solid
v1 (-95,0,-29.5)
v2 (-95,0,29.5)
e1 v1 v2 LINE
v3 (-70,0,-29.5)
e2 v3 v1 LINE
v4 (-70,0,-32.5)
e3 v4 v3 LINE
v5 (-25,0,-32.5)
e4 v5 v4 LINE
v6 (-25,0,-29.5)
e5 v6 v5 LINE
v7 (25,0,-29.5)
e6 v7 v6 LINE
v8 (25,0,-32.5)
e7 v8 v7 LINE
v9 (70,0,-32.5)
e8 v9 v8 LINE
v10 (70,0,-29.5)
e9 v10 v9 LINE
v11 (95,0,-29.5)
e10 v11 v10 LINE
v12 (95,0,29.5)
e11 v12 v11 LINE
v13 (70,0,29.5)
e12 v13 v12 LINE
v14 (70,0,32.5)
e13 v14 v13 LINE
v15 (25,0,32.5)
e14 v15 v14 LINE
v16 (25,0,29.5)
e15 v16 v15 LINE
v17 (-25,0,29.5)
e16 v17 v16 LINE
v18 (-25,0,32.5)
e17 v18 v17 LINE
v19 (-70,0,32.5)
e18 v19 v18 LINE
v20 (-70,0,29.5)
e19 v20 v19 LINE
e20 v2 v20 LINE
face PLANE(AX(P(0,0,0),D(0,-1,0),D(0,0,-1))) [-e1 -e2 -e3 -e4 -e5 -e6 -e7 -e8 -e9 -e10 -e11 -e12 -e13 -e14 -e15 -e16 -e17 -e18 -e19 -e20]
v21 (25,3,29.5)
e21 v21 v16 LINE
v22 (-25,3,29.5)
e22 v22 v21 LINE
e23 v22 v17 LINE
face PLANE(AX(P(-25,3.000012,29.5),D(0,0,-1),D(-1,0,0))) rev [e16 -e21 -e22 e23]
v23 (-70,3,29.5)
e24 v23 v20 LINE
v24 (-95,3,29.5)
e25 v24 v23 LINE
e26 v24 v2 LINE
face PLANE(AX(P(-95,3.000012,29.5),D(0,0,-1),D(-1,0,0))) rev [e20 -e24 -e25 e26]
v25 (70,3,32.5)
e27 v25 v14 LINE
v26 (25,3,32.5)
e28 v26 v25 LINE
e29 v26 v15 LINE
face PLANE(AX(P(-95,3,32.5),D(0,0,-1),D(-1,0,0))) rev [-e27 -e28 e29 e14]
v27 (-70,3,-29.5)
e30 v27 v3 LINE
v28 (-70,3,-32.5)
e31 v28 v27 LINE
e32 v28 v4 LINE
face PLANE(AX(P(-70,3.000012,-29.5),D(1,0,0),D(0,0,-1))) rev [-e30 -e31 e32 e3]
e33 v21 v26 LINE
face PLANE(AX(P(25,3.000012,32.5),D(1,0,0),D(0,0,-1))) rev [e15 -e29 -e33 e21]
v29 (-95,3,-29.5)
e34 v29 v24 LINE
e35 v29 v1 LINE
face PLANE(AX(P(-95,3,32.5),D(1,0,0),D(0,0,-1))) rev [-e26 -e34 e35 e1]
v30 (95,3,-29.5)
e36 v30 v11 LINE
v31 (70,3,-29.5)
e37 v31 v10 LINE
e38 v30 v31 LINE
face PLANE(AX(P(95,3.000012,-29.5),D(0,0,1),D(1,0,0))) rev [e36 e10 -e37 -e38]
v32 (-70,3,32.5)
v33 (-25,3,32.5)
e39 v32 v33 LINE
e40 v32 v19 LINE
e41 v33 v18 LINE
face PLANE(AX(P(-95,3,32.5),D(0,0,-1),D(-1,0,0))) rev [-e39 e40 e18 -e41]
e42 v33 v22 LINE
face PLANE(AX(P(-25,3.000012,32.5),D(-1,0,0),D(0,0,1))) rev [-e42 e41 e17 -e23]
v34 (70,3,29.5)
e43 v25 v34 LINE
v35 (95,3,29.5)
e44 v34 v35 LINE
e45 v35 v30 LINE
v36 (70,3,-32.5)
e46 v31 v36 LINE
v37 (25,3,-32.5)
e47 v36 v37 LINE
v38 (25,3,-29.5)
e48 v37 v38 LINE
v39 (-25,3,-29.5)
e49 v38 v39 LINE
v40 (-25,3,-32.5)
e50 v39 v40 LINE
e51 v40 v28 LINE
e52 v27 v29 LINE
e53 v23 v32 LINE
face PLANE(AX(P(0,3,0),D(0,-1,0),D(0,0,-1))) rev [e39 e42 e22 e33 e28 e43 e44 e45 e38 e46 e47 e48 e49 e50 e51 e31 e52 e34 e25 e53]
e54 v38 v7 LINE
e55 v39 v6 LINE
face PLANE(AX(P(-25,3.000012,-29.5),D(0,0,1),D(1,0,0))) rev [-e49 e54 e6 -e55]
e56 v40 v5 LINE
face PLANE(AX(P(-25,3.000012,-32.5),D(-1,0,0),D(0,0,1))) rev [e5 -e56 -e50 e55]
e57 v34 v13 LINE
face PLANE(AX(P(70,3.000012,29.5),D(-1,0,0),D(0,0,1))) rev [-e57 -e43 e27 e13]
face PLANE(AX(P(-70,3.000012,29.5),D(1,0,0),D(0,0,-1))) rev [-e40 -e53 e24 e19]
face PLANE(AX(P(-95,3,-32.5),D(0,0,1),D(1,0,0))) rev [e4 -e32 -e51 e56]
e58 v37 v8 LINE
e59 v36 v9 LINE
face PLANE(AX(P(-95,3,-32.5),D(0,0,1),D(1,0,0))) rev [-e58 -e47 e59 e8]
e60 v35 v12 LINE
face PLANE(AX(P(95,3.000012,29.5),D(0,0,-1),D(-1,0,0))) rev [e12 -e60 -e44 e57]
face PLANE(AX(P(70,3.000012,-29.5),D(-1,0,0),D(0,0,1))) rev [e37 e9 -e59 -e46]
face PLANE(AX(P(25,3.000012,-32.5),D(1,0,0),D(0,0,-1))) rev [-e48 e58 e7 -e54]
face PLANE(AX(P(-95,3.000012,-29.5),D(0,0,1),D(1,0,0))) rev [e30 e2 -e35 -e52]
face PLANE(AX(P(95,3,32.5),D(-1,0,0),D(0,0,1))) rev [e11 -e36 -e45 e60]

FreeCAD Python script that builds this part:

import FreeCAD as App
import Part
import Sketcher
from FreeCAD import Vector
Q = App.Units.Quantity


def add_polygon(sketch, points):
    """Adds a closed chain of lines whose ends are joined by coincident constraints."""
    first, n = sketch.GeometryCount, len(points)
    for a, b in zip(points, points[1:] + points[:1]):
        sketch.addGeometry(Part.LineSegment(App.Vector(*a, 0), App.Vector(*b, 0)), False)
    for i in range(n):
        sketch.addConstraint(Sketcher.Constraint("Coincident", first + i, 2, first + (i + 1) % n, 1))

doc = App.newDocument("Part")
body = doc.addObject("PartDesign::Body", "Body")

# Sketch on XZ plane
sketch1 = body.newObject("Sketcher::SketchObject", "Sketch")
sketch1.AttachmentSupport = (doc.getObject("XZ_Plane"), [""])
sketch1.MapMode = "FlatFace"
add_polygon(sketch1, [(-95, -32), (-95, 32), (95, 32), (95, -32)])  # lines 0-3
sketch1.addConstraint([
    Sketcher.Constraint("Vertical", 0),
    Sketcher.Constraint("Horizontal", 1),
    Sketcher.Constraint("Vertical", 2),
    Sketcher.Constraint("Horizontal", 3),
    Sketcher.Constraint("Symmetric", 0, 2, 2, 2, -1, 1),
    Sketcher.Constraint("DistanceX", 1, 1, 1, 2, Q("190 mm")),
    Sketcher.Constraint("DistanceY", 0, 1, 0, 2, Q("65 mm")),
])
pad1 = body.newObject("PartDesign::Pad", "Pad")
pad1.Profile = sketch1
pad1.Length = 3
pad1.Reversed = True

# Sketch on XZ plane
sketch2 = body.newObject("Sketcher::SketchObject", "Sketch001")
sketch2.AttachmentSupport = (doc.getObject("XZ_Plane"), [""])
sketch2.MapMode = "FlatFace"
sketch2.AttachmentOffset = App.Placement(Vector(0, 0, -3), App.Rotation())
add_polygon(sketch2, [(-116.1, -53.6), (-116.1, 53.6), (116.1, 53.6), (116.1, -53.6)])  # lines 0-3
add_polygon(sketch2, [(-95, 29.5), (-95, -29.5), (-70, -29.5), (-70, -32.5), (-25, -32.5), (-25, -29.5), (25, -29.5), (25, -32.5), (70, -32.5), (70, -29.5), (95, -29.5), (95, 29.5), (70, 29.5), (70, 32.5), (25, 32.5), (25, 29.5), (-25, 29.5), (-25, 32.5), (-70, 32.5), (-70, 29.5)])  # lines 4-23
sketch2.addConstraint([
    Sketcher.Constraint("Vertical", 0),
    Sketcher.Constraint("Horizontal", 1),
    Sketcher.Constraint("Vertical", 2),
    Sketcher.Constraint("Horizontal", 3),
    Sketcher.Constraint("Vertical", 4),
    Sketcher.Constraint("Horizontal", 5),
    Sketcher.Constraint("Vertical", 6),
    Sketcher.Constraint("Horizontal", 7),
    Sketcher.Constraint("Vertical", 8),
    Sketcher.Constraint("Horizontal", 9),
    Sketcher.Constraint("Vertical", 10),
    Sketcher.Constraint("Horizontal", 11),
    Sketcher.Constraint("Vertical", 12),
    Sketcher.Constraint("Horizontal", 13),
    Sketcher.Constraint("Vertical", 14),
    Sketcher.Constraint("Horizontal", 15),
    Sketcher.Constraint("Vertical", 16),
    Sketcher.Constraint("Horizontal", 17),
    Sketcher.Constraint("Vertical", 18),
    Sketcher.Constraint("Horizontal", 19),
    Sketcher.Constraint("Vertical", 20),
    Sketcher.Constraint("Horizontal", 21),
    Sketcher.Constraint("Vertical", 22),
    Sketcher.Constraint("Horizontal", 23),
    Sketcher.Constraint("Symmetric", 0, 2, 2, 2, -1, 1),
    Sketcher.Constraint("Symmetric", 4, 2, 14, 2, -1, 1),
    Sketcher.Constraint("Symmetric", 6, 2, 16, 2, -1, 1),
    Sketcher.Constraint("Symmetric", 8, 2, 18, 2, -1, 1),
    Sketcher.Constraint("Symmetric", 10, 2, 20, 2, -1, 1),
    Sketcher.Constraint("Symmetric", 12, 2, 22, 2, -1, 1),
    Sketcher.Constraint("Symmetric", 7, 2, 10, 2, -2),
    Sketcher.Constraint("Symmetric", 5, 2, 12, 2, -2),
    Sketcher.Constraint("Horizontal", 5, 2, 8, 2),
    Sketcher.Constraint("DistanceX", 5, 1, 5, 2, Q("25 mm")),
    Sketcher.Constraint("DistanceX", 7, 1, 7, 2, Q("45 mm")),
    Sketcher.Constraint("DistanceX", 9, 1, 9, 2, Q("50 mm")),
    Sketcher.Constraint("DistanceY", 4, 2, 4, 1, Q("59 mm")),
    Sketcher.Constraint("DistanceY", 6, 2, 6, 1, Q("3 mm")),
    Sketcher.Constraint("DistanceX", 1, 1, 1, 2, Q("232.166 mm")),
    Sketcher.Constraint("DistanceY", 0, 1, 0, 2, Q("107.166 mm")),
])
pocket1 = body.newObject("PartDesign::Pocket", "Pocket")
pocket1.Profile = sketch2
pocket1.Type = "ThroughAll"
pocket1.Midplane = True

doc.recompute()
